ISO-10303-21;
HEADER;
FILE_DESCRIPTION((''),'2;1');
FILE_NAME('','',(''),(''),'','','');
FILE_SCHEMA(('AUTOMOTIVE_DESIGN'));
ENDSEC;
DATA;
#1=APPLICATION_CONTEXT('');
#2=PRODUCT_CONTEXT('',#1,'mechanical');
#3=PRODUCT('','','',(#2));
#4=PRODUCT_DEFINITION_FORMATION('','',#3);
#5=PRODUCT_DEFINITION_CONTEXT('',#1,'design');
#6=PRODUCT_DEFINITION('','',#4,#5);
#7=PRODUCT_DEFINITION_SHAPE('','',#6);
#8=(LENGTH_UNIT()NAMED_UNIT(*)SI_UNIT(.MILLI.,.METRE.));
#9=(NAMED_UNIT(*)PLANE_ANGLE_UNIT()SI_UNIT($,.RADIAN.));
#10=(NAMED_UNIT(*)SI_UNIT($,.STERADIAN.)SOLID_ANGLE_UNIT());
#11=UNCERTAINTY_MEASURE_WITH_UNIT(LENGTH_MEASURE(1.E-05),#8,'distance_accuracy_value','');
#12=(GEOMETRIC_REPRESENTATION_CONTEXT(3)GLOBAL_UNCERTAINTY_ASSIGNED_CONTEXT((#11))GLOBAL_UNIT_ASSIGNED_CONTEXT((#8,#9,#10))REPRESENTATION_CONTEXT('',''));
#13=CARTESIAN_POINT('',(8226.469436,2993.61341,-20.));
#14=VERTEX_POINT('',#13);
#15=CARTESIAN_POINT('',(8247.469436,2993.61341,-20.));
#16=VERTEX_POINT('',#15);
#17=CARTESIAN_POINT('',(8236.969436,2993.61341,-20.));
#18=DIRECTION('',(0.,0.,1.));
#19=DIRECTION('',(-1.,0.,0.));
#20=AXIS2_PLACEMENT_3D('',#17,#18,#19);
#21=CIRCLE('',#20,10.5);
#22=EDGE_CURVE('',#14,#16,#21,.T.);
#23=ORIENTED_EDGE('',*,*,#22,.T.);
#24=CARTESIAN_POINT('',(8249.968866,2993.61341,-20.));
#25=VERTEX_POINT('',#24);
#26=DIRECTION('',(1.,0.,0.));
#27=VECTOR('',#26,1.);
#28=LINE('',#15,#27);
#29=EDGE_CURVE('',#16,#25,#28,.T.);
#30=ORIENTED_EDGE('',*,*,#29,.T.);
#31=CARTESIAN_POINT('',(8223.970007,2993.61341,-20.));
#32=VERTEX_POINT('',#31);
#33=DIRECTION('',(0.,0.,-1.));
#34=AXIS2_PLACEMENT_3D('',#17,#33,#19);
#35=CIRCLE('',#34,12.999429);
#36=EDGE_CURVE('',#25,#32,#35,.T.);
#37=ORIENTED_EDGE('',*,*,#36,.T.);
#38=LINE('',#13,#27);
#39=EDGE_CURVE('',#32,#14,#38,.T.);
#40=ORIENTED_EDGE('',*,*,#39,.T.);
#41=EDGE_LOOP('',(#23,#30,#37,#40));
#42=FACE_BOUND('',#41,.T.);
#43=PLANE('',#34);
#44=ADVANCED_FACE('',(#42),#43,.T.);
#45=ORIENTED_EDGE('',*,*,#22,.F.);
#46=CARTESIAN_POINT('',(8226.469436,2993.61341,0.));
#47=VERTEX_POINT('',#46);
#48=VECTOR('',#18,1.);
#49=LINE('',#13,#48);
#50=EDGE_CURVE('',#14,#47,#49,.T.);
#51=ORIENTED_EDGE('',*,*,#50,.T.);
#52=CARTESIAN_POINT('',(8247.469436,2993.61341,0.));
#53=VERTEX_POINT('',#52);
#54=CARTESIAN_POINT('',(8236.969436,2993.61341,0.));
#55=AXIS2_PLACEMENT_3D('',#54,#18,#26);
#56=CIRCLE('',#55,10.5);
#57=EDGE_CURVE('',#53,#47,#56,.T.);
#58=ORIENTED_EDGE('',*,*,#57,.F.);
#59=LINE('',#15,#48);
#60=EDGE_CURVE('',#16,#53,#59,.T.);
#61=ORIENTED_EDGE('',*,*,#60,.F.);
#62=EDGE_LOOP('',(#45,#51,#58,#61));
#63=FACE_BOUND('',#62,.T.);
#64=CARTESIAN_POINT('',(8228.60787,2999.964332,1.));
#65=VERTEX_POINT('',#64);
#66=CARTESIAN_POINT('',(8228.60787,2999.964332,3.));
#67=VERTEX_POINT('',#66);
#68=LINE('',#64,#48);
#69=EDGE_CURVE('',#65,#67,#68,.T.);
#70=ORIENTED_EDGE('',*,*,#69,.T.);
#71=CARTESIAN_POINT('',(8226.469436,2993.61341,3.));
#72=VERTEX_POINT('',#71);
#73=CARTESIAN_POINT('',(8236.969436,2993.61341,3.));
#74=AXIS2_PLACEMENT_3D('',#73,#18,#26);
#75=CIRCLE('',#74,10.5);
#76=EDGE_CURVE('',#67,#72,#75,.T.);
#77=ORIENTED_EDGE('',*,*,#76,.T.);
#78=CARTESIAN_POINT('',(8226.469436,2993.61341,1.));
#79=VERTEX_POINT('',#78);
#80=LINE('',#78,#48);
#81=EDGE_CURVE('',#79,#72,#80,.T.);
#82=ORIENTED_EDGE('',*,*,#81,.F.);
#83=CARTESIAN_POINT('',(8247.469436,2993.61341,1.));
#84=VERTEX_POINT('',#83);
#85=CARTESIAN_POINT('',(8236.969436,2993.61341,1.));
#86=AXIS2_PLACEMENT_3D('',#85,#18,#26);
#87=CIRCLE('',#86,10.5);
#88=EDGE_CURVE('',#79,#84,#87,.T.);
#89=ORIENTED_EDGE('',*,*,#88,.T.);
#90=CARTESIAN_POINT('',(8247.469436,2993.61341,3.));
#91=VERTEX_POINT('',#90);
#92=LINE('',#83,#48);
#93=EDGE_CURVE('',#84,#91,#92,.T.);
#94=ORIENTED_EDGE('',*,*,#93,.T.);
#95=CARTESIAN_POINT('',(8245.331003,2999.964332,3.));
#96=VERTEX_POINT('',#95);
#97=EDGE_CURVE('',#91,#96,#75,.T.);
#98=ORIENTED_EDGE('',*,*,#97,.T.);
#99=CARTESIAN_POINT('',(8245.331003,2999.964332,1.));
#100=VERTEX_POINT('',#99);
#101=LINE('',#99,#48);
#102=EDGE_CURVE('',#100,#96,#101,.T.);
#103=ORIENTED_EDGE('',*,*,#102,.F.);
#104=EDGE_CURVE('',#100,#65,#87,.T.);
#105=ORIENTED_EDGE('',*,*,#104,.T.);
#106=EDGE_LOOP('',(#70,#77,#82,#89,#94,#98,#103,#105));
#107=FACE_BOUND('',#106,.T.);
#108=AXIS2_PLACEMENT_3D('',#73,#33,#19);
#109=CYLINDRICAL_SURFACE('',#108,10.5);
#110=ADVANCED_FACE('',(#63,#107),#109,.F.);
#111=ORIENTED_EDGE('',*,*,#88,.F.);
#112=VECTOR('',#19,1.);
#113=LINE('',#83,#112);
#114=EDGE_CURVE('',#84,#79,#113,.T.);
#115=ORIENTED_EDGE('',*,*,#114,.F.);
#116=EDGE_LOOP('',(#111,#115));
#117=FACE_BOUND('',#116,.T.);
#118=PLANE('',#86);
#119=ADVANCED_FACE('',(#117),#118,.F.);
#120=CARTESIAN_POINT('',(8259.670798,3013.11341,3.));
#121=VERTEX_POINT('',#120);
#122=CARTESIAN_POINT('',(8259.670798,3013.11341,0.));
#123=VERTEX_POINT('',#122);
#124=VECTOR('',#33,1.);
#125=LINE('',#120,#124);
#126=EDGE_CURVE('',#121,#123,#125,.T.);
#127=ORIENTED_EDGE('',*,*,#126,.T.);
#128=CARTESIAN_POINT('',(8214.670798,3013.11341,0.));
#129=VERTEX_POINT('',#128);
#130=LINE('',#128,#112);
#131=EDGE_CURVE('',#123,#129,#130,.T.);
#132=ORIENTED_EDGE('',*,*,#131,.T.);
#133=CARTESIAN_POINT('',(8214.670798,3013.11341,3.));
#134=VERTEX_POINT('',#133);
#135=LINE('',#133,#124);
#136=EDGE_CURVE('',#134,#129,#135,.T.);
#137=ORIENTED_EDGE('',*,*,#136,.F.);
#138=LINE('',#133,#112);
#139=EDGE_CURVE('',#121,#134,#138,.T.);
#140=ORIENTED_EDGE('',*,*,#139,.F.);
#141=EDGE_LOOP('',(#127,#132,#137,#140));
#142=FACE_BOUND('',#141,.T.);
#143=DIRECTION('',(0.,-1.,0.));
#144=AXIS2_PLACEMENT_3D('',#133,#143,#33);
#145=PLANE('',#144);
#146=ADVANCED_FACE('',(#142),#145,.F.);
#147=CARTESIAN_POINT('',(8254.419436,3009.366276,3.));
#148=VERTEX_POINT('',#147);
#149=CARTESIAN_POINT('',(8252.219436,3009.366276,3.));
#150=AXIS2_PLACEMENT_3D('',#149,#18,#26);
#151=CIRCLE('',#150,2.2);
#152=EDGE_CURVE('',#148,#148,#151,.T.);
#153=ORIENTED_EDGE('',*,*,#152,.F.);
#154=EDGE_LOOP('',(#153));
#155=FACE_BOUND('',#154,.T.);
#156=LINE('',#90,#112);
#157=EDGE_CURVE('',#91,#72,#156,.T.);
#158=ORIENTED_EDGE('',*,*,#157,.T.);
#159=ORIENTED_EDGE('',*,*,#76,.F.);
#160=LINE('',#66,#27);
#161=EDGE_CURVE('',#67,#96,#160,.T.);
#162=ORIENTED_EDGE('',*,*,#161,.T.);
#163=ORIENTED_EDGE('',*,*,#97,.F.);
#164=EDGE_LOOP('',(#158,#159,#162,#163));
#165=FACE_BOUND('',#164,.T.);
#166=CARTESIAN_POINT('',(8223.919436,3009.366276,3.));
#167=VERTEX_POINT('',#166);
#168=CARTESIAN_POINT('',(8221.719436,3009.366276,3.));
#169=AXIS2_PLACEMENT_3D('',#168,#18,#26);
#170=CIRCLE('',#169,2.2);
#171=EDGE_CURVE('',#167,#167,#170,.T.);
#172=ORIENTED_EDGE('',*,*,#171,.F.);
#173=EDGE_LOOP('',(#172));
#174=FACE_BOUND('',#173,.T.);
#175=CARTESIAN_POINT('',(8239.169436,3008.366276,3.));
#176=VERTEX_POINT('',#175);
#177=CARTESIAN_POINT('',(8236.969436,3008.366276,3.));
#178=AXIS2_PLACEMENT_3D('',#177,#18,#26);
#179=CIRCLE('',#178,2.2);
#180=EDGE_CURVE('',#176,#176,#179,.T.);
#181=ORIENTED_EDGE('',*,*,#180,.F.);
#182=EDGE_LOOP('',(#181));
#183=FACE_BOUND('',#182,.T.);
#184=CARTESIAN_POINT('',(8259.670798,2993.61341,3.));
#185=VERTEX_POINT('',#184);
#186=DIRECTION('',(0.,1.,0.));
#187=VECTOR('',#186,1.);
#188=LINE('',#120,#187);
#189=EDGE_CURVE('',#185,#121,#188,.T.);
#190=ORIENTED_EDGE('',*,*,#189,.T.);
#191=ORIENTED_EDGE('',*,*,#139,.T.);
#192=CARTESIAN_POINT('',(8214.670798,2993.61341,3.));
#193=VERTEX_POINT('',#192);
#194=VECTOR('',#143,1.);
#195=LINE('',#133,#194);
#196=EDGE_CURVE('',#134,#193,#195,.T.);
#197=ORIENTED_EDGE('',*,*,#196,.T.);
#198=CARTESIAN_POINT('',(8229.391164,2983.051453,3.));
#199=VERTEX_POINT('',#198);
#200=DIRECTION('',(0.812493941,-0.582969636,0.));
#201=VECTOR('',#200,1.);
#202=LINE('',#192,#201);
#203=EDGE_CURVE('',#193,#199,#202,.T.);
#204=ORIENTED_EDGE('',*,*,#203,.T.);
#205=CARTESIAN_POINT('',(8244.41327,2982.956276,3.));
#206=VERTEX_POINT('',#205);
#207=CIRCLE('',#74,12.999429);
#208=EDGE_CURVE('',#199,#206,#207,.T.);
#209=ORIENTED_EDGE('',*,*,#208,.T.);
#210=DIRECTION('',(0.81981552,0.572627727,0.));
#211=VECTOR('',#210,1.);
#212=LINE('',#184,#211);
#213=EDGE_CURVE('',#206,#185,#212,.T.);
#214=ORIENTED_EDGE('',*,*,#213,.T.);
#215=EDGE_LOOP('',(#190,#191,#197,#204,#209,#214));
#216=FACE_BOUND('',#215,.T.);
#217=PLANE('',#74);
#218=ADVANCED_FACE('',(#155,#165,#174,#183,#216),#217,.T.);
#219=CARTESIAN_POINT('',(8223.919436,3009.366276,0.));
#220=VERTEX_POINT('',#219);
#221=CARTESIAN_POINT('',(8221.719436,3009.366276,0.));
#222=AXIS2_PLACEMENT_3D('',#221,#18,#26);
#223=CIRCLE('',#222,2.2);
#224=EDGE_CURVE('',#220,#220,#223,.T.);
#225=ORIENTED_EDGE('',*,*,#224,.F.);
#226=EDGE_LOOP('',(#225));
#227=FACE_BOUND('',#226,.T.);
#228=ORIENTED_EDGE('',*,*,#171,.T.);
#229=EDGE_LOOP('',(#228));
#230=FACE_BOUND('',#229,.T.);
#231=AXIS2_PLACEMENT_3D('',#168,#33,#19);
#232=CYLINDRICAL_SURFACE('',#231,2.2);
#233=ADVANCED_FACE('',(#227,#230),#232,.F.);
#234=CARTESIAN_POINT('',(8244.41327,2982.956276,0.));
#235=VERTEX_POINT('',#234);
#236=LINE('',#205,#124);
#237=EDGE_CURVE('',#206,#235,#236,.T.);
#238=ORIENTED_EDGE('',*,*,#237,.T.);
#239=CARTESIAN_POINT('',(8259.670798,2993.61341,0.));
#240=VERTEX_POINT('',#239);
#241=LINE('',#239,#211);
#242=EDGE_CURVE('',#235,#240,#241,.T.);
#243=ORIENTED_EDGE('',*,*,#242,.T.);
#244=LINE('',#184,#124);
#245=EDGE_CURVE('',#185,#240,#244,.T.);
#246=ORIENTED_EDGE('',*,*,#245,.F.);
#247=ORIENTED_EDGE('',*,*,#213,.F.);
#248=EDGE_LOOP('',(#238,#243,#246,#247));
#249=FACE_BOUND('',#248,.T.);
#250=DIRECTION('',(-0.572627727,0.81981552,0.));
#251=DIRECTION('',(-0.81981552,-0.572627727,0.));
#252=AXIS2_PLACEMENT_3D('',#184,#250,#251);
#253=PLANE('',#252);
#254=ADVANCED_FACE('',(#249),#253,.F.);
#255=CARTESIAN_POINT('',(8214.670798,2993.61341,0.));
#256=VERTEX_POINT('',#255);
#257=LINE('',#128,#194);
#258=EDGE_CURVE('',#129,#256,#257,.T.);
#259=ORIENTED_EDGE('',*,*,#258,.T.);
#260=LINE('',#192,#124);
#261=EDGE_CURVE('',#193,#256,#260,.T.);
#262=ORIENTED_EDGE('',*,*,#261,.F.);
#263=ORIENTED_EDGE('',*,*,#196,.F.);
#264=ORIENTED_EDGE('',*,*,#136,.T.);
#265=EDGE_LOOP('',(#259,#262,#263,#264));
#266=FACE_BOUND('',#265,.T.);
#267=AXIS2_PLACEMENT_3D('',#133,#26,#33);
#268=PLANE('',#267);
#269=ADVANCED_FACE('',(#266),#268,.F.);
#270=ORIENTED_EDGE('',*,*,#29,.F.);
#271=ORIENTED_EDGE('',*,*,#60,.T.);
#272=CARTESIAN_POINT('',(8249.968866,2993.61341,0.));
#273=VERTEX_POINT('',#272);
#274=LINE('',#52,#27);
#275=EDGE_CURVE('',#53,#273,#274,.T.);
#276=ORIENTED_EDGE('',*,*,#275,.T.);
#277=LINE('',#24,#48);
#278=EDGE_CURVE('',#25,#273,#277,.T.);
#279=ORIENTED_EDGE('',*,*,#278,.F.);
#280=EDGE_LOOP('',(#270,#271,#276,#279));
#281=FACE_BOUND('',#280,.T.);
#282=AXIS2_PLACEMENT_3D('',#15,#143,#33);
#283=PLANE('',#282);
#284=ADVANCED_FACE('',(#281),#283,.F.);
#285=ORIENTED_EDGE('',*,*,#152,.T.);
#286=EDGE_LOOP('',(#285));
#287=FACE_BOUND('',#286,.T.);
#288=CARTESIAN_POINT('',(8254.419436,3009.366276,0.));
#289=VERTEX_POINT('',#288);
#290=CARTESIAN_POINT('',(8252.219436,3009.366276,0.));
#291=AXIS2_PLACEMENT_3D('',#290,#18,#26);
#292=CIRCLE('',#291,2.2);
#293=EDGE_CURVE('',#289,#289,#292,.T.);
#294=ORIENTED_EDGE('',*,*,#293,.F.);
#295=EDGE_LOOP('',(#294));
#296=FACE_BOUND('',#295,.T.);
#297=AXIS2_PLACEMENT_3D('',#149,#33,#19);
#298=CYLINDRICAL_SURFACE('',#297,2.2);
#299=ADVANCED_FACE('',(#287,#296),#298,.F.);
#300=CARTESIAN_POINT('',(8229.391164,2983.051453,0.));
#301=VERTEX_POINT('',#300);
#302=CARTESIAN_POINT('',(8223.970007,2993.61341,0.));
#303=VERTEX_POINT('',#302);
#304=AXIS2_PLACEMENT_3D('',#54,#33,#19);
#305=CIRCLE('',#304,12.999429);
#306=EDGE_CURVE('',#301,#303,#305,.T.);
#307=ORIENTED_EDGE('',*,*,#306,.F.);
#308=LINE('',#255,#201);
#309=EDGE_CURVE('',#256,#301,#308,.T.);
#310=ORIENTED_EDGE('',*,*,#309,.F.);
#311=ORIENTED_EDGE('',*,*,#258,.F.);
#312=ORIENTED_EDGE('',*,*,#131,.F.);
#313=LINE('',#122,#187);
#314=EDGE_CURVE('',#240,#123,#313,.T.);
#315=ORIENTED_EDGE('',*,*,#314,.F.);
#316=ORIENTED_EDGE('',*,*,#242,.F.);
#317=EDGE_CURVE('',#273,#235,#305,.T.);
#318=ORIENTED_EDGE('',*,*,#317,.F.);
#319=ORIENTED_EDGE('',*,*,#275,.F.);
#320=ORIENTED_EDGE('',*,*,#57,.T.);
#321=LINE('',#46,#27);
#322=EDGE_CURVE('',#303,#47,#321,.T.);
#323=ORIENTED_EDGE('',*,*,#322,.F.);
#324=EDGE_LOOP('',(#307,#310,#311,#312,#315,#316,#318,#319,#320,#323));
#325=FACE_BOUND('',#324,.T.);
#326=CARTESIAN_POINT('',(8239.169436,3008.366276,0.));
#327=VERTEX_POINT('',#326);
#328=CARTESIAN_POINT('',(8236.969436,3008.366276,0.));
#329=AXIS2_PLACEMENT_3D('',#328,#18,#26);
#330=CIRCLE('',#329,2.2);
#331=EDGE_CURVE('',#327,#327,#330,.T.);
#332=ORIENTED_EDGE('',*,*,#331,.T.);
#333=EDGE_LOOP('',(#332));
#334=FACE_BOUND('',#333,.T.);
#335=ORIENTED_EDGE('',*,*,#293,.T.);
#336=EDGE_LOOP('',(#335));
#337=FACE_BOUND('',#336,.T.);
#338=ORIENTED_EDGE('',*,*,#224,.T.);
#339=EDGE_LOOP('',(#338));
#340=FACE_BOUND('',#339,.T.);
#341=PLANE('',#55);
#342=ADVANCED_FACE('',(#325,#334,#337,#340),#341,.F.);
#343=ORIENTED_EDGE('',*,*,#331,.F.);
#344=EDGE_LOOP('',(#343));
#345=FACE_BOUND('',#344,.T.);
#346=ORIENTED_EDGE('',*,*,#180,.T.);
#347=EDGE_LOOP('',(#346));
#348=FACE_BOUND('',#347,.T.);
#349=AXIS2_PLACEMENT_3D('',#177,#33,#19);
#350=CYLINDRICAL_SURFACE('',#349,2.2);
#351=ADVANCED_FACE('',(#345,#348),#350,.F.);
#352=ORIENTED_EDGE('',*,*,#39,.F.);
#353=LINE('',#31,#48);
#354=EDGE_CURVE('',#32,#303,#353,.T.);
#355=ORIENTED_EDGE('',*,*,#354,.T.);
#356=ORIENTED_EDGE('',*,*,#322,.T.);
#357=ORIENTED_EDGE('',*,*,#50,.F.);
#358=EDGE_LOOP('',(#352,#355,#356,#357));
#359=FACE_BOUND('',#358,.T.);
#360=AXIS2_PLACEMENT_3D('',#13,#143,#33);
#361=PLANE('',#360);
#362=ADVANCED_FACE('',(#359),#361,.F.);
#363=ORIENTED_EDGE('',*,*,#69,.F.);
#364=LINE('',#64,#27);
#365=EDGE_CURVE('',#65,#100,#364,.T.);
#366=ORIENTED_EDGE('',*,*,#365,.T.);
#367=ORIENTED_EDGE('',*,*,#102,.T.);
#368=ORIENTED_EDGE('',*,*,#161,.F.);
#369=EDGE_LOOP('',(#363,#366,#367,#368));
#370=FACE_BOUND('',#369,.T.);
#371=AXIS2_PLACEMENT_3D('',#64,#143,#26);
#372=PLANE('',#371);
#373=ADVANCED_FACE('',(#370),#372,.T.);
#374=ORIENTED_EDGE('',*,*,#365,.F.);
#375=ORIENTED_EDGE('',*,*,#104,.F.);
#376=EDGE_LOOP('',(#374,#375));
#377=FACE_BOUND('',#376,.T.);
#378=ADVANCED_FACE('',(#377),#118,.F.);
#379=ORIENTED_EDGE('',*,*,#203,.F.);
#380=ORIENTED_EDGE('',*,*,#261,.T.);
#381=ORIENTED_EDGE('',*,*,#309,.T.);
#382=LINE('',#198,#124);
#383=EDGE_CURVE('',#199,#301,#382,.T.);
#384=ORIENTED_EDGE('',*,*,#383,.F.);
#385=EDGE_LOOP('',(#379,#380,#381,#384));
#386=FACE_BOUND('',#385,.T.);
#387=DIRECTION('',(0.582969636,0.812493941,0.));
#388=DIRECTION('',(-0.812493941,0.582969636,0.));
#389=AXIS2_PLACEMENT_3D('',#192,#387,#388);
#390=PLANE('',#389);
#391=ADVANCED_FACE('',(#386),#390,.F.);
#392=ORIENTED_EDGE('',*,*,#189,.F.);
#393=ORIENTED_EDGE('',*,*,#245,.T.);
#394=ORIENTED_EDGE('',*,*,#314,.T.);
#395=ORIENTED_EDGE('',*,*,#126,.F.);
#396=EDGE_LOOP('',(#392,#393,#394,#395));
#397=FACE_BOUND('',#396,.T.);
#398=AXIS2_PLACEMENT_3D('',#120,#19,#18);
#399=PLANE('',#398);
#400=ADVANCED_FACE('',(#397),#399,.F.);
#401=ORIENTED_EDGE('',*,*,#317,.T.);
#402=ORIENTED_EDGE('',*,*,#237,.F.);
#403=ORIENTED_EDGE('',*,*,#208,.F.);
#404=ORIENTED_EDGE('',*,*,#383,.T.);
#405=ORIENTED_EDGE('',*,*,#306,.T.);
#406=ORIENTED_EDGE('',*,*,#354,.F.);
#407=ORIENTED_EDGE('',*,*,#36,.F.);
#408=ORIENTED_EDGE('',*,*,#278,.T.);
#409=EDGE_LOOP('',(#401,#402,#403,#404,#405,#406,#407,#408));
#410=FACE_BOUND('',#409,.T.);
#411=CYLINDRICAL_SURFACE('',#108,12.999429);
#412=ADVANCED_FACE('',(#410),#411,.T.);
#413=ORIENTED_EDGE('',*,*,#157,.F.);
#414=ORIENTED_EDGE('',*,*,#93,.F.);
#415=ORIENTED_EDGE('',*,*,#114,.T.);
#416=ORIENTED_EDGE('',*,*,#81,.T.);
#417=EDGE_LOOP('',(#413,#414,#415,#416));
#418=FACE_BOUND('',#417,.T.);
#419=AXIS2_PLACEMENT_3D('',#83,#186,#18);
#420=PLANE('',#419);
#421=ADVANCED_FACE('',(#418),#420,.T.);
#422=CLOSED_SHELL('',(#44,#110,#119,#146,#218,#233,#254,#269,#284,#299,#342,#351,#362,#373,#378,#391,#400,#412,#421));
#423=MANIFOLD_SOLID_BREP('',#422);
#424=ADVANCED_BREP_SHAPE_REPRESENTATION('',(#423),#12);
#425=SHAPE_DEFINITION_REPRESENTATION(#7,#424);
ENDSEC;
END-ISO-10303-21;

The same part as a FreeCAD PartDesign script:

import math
import FreeCAD as App
import Part
import Sketcher
from FreeCAD import Vector
Q = App.Units.Quantity

doc = App.newDocument("Part")
body = doc.addObject("PartDesign::Body", "Body")

# Sketch on XY plane
sketch1 = body.newObject("Sketcher::SketchObject", "Sketch")
sketch1.AttachmentSupport = (doc.getObject("XY_Plane"), [""])
sketch1.MapMode = "FlatFace"
sketch1.addGeometry([
    Part.LineSegment(Vector(8259.7, 3013.1, 0), Vector(8214.7, 3013.1, 0)),  # 0
    Part.LineSegment(Vector(8214.7, 3013.1, 0), Vector(8214.7, 2993.6, 0)),  # 1
    Part.LineSegment(Vector(8214.7, 2993.6, 0), Vector(8229.4, 2983.1, 0)),  # 2
    Part.ArcOfCircle(Part.Circle(Vector(8237, 2993.6, 0), Vector(0, 0, 1), 13), math.radians(-126), math.radians(-55)),  # 3
    Part.LineSegment(Vector(8244.4, 2983, 0), Vector(8259.7, 2993.6, 0)),  # 4
    Part.LineSegment(Vector(8259.7, 2993.6, 0), Vector(8259.7, 3013.1, 0)),  # 5
    Part.Circle(Vector(8237, 2993.6, 0), Vector(0, 0, 1), 10.5),  # 6
    Part.Circle(Vector(8252.2, 3009.4, 0), Vector(0, 0, 1), 2.2),  # 7
    Part.Circle(Vector(8237, 3008.4, 0), Vector(0, 0, 1), 2.2),  # 8
    Part.Circle(Vector(8221.7, 3009.4, 0), Vector(0, 0, 1), 2.2),  # 9
], False)
sketch1.addConstraint([
    Sketcher.Constraint("Coincident", 0, 2, 1, 1),
    Sketcher.Constraint("Coincident", 1, 2, 2, 1),
    Sketcher.Constraint("Tangent", 2, 2, 3, 1),
    Sketcher.Constraint("Tangent", 3, 2, 4, 1),
    Sketcher.Constraint("Coincident", 4, 2, 5, 1),
    Sketcher.Constraint("Coincident", 5, 2, 0, 1),
    Sketcher.Constraint("Horizontal", 0),
    Sketcher.Constraint("Vertical", 1),
    Sketcher.Constraint("Vertical", 5),
    Sketcher.Constraint("Coincident", 6, 3, 3, 3),
    Sketcher.Constraint("Equal", 7, 8),
    Sketcher.Constraint("Equal", 8, 9),
    Sketcher.Constraint("Horizontal", 7, 3, 9, 3),
    Sketcher.Constraint("Horizontal", 6, 3, 1, 2),
    Sketcher.Constraint("Horizontal", 1, 2, 4, 2),
    Sketcher.Constraint("Vertical", 6, 3, 8, 3),
    Sketcher.Constraint("Diameter", 6, Q("21 mm")),
    Sketcher.Constraint("Diameter", 7, Q("4.4 mm")),
    Sketcher.Constraint("DistanceX", 0, 2, 0, 1, Q("45 mm")),
    Sketcher.Constraint("DistanceY", 1, 2, 1, 1, Q("19.5 mm")),
    Sketcher.Constraint("DistanceY", 8, 3, 7, 3, Q("1 mm")),
    Sketcher.Constraint("DistanceX", 9, 3, 7, 3, Q("30.5 mm")),
    Sketcher.Constraint("Radius", 3, Q("12.999429 mm")),
    Sketcher.Constraint("DistanceX", 3, 3, 7, 3, Q("15.25 mm")),
    Sketcher.Constraint("DistanceY", 3, 2, 8, 3, Q("25.409999 mm")),
    Sketcher.Constraint("DistanceX", -1, 1, 0, 2, Q("8214.670798 mm")),
    Sketcher.Constraint("Distance", 2, Q("18.117509 mm")),
    Sketcher.Constraint("DistanceY", -1, 1, 3, 3, Q("2993.61341 mm")),
])
pad1 = body.newObject("PartDesign::Pad", "Pad")
pad1.Profile = sketch1
pad1.Length = 3

# Sketch on XY plane
sketch2 = body.newObject("Sketcher::SketchObject", "Sketch001")
sketch2.AttachmentSupport = (doc.getObject("XY_Plane"), [""])
sketch2.MapMode = "FlatFace"
sketch2.AttachmentOffset = App.Placement(Vector(0, 0, 1), App.Rotation())
sketch2.addGeometry([
    Part.LineSegment(Vector(8247, 2994, 0), Vector(8226, 2994, 0)),
    Part.ArcOfCircle(Part.Circle(Vector(8237, 2994, 0), Vector(0, 0, 1), 10), math.radians(180), math.radians(360)),
    Part.LineSegment(Vector(8229, 3000, 0), Vector(8245, 3000, 0)),
    Part.ArcOfCircle(Part.Circle(Vector(8237, 2994, 0), Vector(0, 0, 1), 11), math.radians(37), math.radians(143)),
], False)
sketch2.addConstraint([
    Sketcher.Constraint("Coincident", 0, 1, 1, 2),
    Sketcher.Constraint("Coincident", 1, 1, 0, 2),
    Sketcher.Constraint("Coincident", 2, 1, 3, 2),
    Sketcher.Constraint("Coincident", 3, 1, 2, 2),
    Sketcher.Constraint("Horizontal", 0),
    Sketcher.Constraint("Horizontal", 2),
    Sketcher.Constraint("Coincident", 3, 3, 1, 3),
    Sketcher.Constraint("Equal", 1, 3),
    Sketcher.Constraint("Horizontal", 3, 3, 0, 1),
    Sketcher.Constraint("Radius", 1, Q("10.5 mm")),
    Sketcher.Constraint("DistanceX", 2, 1, 2, 2, Q("16.723133 mm")),
    Sketcher.Constraint("DistanceY", -1, 1, 1, 3, Q("2993.61341 mm")),
    Sketcher.Constraint("DistanceX", -1, 1, 2, 1, Q("8228.60787 mm")),
])
pad2 = body.newObject("PartDesign::Pad", "Pad001")
pad2.Profile = sketch2
pad2.Length = 2

# Sketch on XY plane
sketch3 = body.newObject("Sketcher::SketchObject", "Sketch002")
sketch3.AttachmentSupport = (doc.getObject("XY_Plane"), [""])
sketch3.MapMode = "FlatFace"
sketch3.AttachmentOffset = App.Placement(Vector(0, 0, -20), App.Rotation())
sketch3.addGeometry([
    Part.LineSegment(Vector(8247.5, 2993.6, 0), Vector(8250, 2993.6, 0)),
    Part.ArcOfCircle(Part.Circle(Vector(8237, 2993.6, 0), Vector(0, 0, 1), 13), math.radians(180), math.radians(360)),
    Part.LineSegment(Vector(8224, 2993.6, 0), Vector(8226.5, 2993.6, 0)),
    Part.ArcOfCircle(Part.Circle(Vector(8237, 2993.6, 0), Vector(0, 0, 1), 10.5), math.radians(180), math.radians(360)),
], False)
sketch3.addConstraint([
    Sketcher.Constraint("Coincident", 0, 2, 1, 2),
    Sketcher.Constraint("Coincident", 1, 1, 2, 1),
    Sketcher.Constraint("Coincident", 2, 2, 3, 1),
    Sketcher.Constraint("Coincident", 3, 2, 0, 1),
    Sketcher.Constraint("Horizontal", 0),
    Sketcher.Constraint("Horizontal", 2),
    Sketcher.Constraint("Coincident", 3, 3, 1, 3),
    Sketcher.Constraint("Horizontal", 3, 3, 0, 2),
    Sketcher.Constraint("Horizontal", 0, 2, 1, 1),
    Sketcher.Constraint("Radius", 3, Q("10.5 mm")),
    Sketcher.Constraint("Radius", 1, Q("12.999429 mm")),
    Sketcher.Constraint("DistanceY", -1, 1, 1, 3, Q("2993.61341 mm")),
    Sketcher.Constraint("DistanceX", -1, 1, 1, 3, Q("8236.969436 mm")),
])
pad3 = body.newObject("PartDesign::Pad", "Pad002")
pad3.Profile = sketch3
pad3.Length = 20

doc.recompute()
